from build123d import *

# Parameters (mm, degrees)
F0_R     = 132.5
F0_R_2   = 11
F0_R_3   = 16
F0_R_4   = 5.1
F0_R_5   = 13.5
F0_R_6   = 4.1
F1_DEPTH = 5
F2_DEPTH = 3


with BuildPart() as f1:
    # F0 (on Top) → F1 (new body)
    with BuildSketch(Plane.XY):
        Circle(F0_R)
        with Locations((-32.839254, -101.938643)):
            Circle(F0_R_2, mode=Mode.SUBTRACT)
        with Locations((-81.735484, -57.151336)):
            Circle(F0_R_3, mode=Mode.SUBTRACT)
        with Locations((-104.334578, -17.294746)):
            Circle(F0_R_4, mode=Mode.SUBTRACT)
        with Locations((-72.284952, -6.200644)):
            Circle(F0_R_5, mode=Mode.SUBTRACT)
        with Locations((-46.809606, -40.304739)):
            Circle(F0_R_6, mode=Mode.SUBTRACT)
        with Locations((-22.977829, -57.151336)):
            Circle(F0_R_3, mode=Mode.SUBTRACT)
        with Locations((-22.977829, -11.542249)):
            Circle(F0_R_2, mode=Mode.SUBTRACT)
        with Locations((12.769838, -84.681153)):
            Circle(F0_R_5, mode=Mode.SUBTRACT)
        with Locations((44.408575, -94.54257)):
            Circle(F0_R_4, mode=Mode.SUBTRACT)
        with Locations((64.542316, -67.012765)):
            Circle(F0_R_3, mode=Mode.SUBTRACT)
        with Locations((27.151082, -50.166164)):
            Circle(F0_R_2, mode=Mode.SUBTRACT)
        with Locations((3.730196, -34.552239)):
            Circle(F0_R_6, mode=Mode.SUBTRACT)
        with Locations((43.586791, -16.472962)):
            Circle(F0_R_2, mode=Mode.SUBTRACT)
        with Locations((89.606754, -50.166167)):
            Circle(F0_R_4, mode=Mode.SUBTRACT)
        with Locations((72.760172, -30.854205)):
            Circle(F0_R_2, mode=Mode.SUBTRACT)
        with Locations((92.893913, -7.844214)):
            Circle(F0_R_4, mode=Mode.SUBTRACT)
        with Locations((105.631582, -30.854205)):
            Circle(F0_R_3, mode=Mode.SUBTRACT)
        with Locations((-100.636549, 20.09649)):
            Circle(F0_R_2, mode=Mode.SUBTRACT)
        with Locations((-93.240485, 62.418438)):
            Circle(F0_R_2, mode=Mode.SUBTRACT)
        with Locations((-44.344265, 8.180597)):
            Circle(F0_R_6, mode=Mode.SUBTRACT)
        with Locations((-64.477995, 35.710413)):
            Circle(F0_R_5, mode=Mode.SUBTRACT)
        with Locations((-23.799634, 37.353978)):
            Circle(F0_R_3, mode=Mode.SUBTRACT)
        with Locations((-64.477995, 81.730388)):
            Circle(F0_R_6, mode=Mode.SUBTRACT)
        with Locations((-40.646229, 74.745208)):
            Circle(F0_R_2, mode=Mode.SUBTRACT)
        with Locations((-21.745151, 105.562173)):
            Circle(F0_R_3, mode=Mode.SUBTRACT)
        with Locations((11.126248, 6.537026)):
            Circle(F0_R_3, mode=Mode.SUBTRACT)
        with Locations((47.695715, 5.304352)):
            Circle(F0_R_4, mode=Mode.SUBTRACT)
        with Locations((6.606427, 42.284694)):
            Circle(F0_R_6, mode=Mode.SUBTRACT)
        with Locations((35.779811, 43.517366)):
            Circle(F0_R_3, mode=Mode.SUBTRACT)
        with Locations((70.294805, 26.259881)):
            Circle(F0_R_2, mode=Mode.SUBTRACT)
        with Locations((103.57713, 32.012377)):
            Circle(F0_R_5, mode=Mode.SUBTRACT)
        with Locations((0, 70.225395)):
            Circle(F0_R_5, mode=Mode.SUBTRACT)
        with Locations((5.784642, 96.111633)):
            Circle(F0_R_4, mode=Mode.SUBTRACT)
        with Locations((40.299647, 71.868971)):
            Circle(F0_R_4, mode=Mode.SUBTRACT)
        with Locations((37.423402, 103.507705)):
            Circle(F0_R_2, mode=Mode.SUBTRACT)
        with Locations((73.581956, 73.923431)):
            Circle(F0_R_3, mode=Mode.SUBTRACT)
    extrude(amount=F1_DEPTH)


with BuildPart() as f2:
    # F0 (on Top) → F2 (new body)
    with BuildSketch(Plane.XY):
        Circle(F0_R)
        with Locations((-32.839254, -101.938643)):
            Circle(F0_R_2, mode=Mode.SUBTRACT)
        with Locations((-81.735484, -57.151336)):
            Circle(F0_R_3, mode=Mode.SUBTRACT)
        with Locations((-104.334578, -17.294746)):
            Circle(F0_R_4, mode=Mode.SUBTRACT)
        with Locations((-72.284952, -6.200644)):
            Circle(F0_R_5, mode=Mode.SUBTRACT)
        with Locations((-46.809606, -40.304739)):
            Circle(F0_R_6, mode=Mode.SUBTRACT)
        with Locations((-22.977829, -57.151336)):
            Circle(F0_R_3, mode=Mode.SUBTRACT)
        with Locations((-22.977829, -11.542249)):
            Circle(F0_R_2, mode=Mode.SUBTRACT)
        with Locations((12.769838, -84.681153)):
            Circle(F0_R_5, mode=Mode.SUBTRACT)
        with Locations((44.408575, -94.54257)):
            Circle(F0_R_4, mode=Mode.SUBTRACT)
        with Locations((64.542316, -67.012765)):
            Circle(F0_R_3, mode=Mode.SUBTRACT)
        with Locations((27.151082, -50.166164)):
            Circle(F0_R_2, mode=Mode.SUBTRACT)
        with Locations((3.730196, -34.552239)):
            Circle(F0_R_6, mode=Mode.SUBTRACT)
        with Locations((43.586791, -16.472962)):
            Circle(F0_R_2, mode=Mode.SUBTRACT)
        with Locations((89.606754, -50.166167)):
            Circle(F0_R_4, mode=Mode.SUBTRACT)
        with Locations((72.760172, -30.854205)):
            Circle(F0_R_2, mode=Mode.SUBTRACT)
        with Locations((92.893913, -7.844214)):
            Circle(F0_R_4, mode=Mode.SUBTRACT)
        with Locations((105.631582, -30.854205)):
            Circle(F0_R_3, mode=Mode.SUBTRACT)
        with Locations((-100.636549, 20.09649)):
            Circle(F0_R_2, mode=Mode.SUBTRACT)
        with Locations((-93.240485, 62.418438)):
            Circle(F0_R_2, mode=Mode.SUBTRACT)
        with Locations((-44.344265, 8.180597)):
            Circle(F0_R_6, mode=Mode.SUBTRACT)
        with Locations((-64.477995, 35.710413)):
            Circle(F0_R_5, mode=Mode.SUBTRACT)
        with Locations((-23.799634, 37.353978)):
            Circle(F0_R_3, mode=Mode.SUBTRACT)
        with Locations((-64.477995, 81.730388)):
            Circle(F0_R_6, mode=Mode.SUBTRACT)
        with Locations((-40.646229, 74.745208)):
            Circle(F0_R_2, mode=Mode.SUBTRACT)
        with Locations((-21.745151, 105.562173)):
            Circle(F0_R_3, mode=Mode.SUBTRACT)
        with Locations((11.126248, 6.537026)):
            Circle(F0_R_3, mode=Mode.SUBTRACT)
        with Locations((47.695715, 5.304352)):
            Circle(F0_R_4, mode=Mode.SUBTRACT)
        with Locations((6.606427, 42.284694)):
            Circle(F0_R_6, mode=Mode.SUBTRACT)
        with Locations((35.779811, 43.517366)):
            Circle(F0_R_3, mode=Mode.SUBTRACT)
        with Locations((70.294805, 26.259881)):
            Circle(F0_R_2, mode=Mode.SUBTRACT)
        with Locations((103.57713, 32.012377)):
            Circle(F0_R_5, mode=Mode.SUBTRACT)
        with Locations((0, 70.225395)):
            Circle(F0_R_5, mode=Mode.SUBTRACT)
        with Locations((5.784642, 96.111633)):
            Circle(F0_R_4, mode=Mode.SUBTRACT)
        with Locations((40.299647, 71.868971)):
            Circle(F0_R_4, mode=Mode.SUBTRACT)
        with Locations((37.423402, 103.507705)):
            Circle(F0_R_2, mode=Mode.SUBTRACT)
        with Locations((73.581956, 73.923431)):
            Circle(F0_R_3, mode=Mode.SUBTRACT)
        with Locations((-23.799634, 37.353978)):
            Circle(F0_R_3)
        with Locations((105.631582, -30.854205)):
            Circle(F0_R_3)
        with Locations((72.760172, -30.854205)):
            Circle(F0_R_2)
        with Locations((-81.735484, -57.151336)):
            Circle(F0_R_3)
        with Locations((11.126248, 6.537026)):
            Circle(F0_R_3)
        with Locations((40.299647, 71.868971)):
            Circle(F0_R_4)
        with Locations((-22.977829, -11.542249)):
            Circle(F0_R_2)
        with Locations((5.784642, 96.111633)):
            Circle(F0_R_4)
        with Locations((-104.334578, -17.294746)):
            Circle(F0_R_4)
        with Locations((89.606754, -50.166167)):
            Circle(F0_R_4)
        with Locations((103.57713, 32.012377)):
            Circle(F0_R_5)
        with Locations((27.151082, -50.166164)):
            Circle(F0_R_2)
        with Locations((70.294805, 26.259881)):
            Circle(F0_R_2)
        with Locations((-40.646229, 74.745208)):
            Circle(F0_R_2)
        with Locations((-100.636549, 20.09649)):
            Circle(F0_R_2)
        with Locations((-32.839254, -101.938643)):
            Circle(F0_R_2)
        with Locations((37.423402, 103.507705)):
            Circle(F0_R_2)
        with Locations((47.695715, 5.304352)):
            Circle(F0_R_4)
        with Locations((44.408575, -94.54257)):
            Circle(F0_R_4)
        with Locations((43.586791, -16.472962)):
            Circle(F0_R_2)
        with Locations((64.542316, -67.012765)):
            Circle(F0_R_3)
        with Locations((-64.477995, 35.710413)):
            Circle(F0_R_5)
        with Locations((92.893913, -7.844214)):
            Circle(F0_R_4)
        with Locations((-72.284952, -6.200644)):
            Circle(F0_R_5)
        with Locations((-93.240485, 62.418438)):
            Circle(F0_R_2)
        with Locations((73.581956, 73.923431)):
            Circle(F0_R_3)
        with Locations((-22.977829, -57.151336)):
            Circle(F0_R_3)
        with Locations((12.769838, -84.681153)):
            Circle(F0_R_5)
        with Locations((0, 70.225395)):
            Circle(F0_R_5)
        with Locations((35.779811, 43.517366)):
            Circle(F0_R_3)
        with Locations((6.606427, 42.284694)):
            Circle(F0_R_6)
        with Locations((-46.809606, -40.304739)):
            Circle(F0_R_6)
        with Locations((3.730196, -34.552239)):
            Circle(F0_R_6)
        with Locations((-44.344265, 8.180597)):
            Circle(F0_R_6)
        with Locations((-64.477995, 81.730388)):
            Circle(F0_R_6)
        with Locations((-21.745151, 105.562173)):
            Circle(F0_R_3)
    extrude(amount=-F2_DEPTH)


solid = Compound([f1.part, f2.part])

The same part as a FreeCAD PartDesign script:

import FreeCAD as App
import Part
import Sketcher
from FreeCAD import Vector

doc = App.newDocument("Part")
params = doc.addObject("Spreadsheet::Sheet", "Params")
for row, (alias, value) in enumerate([
    ("sketch1_diameter", "265 mm"),
    ("sketch1_diameter2", "32 mm"),
    ("sketch1_diameter3", "22 mm"),
    ("sketch1_diameter4", "27 mm"),
    ("sketch1_diameter5", "10.2 mm"),
    ("pad1_length", "5 mm"),
    ("sketch2_diameter", "265 mm"),
    ("pad2_length", "3 mm"),
], start=1):
    params.set(f"A{row}", alias)
    params.set(f"B{row}", "=" + value)
    params.setAlias(f"B{row}", alias)

body = doc.addObject("PartDesign::Body", "Body")

sketch1 = doc.addObject("Sketcher::SketchObject", "Sketch")
body.addObject(sketch1)
sketch1.AttachmentSupport = (doc.XY_Plane, [""])
sketch1.MapMode = "FlatFace"
sketch1.addGeometry([
    Part.Circle(Vector(0, 0, 0), Vector(0, 0, 1), 132.5),
    Part.Circle(Vector(-81.7, -57.2, 0), Vector(0, 0, 1), 16),
    Part.Circle(Vector(-32.8, -101.9, 0), Vector(0, 0, 1), 11),
    Part.Circle(Vector(-23, -57.2, 0), Vector(0, 0, 1), 16),
    Part.Circle(Vector(-104.3, -17.3, 0), Vector(0, 0, 1), 5.1),
    Part.Circle(Vector(-72.3, -6.2, 0), Vector(0, 0, 1), 13.5),
    Part.Circle(Vector(-46.8, -40.3, 0), Vector(0, 0, 1), 4.1),
    Part.Circle(Vector(3.7, -34.6, 0), Vector(0, 0, 1), 4.1),
    Part.Circle(Vector(-23, -11.5, 0), Vector(0, 0, 1), 11),
    Part.Circle(Vector(12.8, -84.7, 0), Vector(0, 0, 1), 13.5),
    Part.Circle(Vector(44.4, -94.5, 0), Vector(0, 0, 1), 5.1),
    Part.Circle(Vector(64.5, -67, 0), Vector(0, 0, 1), 16),
    Part.Circle(Vector(27.2, -50.2, 0), Vector(0, 0, 1), 11),
    Part.Circle(Vector(43.6, -16.5, 0), Vector(0, 0, 1), 11),
    Part.Circle(Vector(89.6, -50.2, 0), Vector(0, 0, 1), 5.1),
    Part.Circle(Vector(72.8, -30.9, 0), Vector(0, 0, 1), 11),
    Part.Circle(Vector(105.6, -30.9, 0), Vector(0, 0, 1), 16),
    Part.Circle(Vector(92.9, -7.8, 0), Vector(0, 0, 1), 5.1),
    Part.Circle(Vector(-100.6, 20.1, 0), Vector(0, 0, 1), 11),
    Part.Circle(Vector(-93.2, 62.4, 0), Vector(0, 0, 1), 11),
    Part.Circle(Vector(-64.5, 35.7, 0), Vector(0, 0, 1), 13.5),
    Part.Circle(Vector(-44.3, 8.2, 0), Vector(0, 0, 1), 4.1),
    Part.Circle(Vector(-23.8, 37.4, 0), Vector(0, 0, 1), 16),
    Part.Circle(Vector(-64.5, 81.7, 0), Vector(0, 0, 1), 4.1),
    Part.Circle(Vector(-40.6, 74.7, 0), Vector(0, 0, 1), 11),
    Part.Circle(Vector(0, 70.2, 0), Vector(0, 0, 1), 13.5),
    Part.Circle(Vector(-21.7, 105.6, 0), Vector(0, 0, 1), 16),
    Part.Circle(Vector(11.1, 6.5, 0), Vector(0, 0, 1), 16),
    Part.Circle(Vector(47.7, 5.3, 0), Vector(0, 0, 1), 5.1),
    Part.Circle(Vector(6.6, 42.3, 0), Vector(0, 0, 1), 4.1),
    Part.Circle(Vector(35.8, 43.5, 0), Vector(0, 0, 1), 16),
    Part.Circle(Vector(70.3, 26.3, 0), Vector(0, 0, 1), 11),
    Part.Circle(Vector(103.6, 32, 0), Vector(0, 0, 1), 13.5),
    Part.Circle(Vector(40.3, 71.9, 0), Vector(0, 0, 1), 5.1),
    Part.Circle(Vector(5.8, 96.1, 0), Vector(0, 0, 1), 5.1),
    Part.Circle(Vector(37.4, 103.5, 0), Vector(0, 0, 1), 11),
    Part.Circle(Vector(73.6, 73.9, 0), Vector(0, 0, 1), 16),
], False)
sketch1.addConstraint([
    Sketcher.Constraint("Coincident", 0, 3, -1, 1),
    Sketcher.Constraint("Equal", 1, 3),
    Sketcher.Constraint("Equal", 6, 7),
    Sketcher.Constraint("Equal", 2, 8),
    Sketcher.Constraint("Equal", 5, 9),
    Sketcher.Constraint("Equal", 4, 10),
    Sketcher.Constraint("Equal", 3, 11),
    Sketcher.Constraint("Equal", 8, 12),
    Sketcher.Constraint("Equal", 12, 13),
    Sketcher.Constraint("Equal", 10, 14),
    Sketcher.Constraint("Equal", 13, 15),
    Sketcher.Constraint("Equal", 11, 16),
    Sketcher.Constraint("Equal", 14, 17),
    Sketcher.Constraint("Equal", 15, 18),
    Sketcher.Constraint("Equal", 18, 19),
    Sketcher.Constraint("Equal", 9, 20),
    Sketcher.Constraint("Equal", 7, 21),
    Sketcher.Constraint("Equal", 16, 22),
    Sketcher.Constraint("Equal", 21, 23),
    Sketcher.Constraint("Equal", 19, 24),
    Sketcher.Constraint("Equal", 20, 25),
    Sketcher.Constraint("Equal", 22, 26),
    Sketcher.Constraint("Equal", 26, 27),
    Sketcher.Constraint("Equal", 17, 28),
    Sketcher.Constraint("Equal", 23, 29),
    Sketcher.Constraint("Equal", 27, 30),
    Sketcher.Constraint("Equal", 24, 31),
    Sketcher.Constraint("Equal", 25, 32),
    Sketcher.Constraint("Equal", 28, 33),
    Sketcher.Constraint("Equal", 33, 34),
    Sketcher.Constraint("Equal", 31, 35),
    Sketcher.Constraint("Equal", 30, 36),
    Sketcher.Constraint("PointOnObject", 25, 3, -2),
    Sketcher.Constraint("Horizontal", 1, 3, 3, 3),
    Sketcher.Constraint("Horizontal", 15, 3, 16, 3),
    Sketcher.Constraint("Vertical", 3, 3, 8, 3),
    Sketcher.Constraint("Vertical", 20, 3, 23, 3),
    Sketcher.Constraint("Diameter", 0, 265.0),
    Sketcher.Constraint("Diameter", 1, 32.0),
    Sketcher.Constraint("Diameter", 2, 22.0),
    Sketcher.Constraint("Diameter", 5, 27.0),
    Sketcher.Constraint("Diameter", 4, 10.2),
    Sketcher.Constraint("Diameter", 6, 8.2),
    Sketcher.Constraint("DistanceY", 2, 3, 5, 3, 95.737999),
    Sketcher.Constraint("DistanceX", 5, 3, 2, 3, 39.445698),
    Sketcher.Constraint("DistanceY", 6, 3, 7, 3, 5.7525),
    Sketcher.Constraint("DistanceY", 11, 3, 12, 3, 16.846601),
    Sketcher.Constraint("DistanceY", 11, 3, 14, 3, 16.846598),
    Sketcher.Constraint("DistanceX", 12, 3, 16, 3, 78.4805),
    Sketcher.Constraint("DistanceY", 18, 3, 23, 3, 61.633898),
    Sketcher.Constraint("DistanceY", 29, 3, 25, 3, 27.940701),
    Sketcher.Constraint("DistanceX", 3, 3, -1, 1, 22.977829),
    Sketcher.Constraint("DistanceY", 6, 3, -1, 1, 40.304739),
    Sketcher.Constraint("DistanceY", 8, 3, -1, 1, 11.542249),
    Sketcher.Constraint("DistanceY", 10, 3, -1, 1, 94.54257),
    Sketcher.Constraint("DistanceX", -1, 1, 12, 3, 27.151082),
    Sketcher.Constraint("DistanceX", -1, 1, 13, 3, 43.586791),
    Sketcher.Constraint("DistanceY", 13, 3, -1, 1, 16.472962),
    Sketcher.Constraint("DistanceX", -1, 1, 15, 3, 72.760172),
    Sketcher.Constraint("DistanceX", 18, 3, -1, 1, 100.636549),
    Sketcher.Constraint("DistanceY", -1, 1, 18, 3, 20.09649),
    Sketcher.Constraint("DistanceY", -1, 1, 19, 3, 62.418438),
    Sketcher.Constraint("DistanceX", 24, 3, -1, 1, 40.646229),
    Sketcher.Constraint("DistanceY", -1, 1, 24, 3, 74.745208),
    Sketcher.Constraint("DistanceX", 26, 3, -1, 1, 21.745151),
    Sketcher.Constraint("DistanceY", -1, 1, 28, 3, 5.304352),
    Sketcher.Constraint("DistanceX", -1, 1, 30, 3, 35.779811),
    Sketcher.Constraint("DistanceY", -1, 1, 31, 3, 26.259881),
    Sketcher.Constraint("DistanceX", -1, 1, 32, 3, 103.57713),
    Sketcher.Constraint("DistanceY", -1, 1, 33, 3, 71.868971),
    Sketcher.Constraint("DistanceY", -1, 1, 36, 3, 73.923431),
    Sketcher.Constraint("DistanceX", 1, 3, 2, 3, 48.89623),
    Sketcher.Constraint("DistanceY", 1, 3, 4, 3, 39.85659),
    Sketcher.Constraint("DistanceX", 4, 3, 3, 3, 81.356749),
    Sketcher.Constraint("DistanceX", 4, 3, 6, 3, 57.524972),
    Sketcher.Constraint("DistanceX", 2, 3, 7, 3, 36.56945),
    Sketcher.Constraint("DistanceX", 2, 3, 9, 3, 45.609092),
    Sketcher.Constraint("DistanceY", 2, 3, 9, 3, 17.25749),
    Sketcher.Constraint("DistanceX", 7, 3, 10, 3, 40.678379),
    Sketcher.Constraint("DistanceX", 10, 3, 11, 3, 20.133741),
    Sketcher.Constraint("DistanceY", 11, 3, 3, 3, 9.861429),
    Sketcher.Constraint("DistanceY", 9, 3, 12, 3, 34.514989),
    Sketcher.Constraint("DistanceX", 12, 3, 14, 3, 62.455672),
    Sketcher.Constraint("DistanceX", 10, 3, 14, 3, 45.198179),
    Sketcher.Constraint("DistanceY", 11, 3, 15, 3, 36.15856),
    Sketcher.Constraint("DistanceX", 17, 3, 16, 3, 12.737669),
    Sketcher.Constraint("DistanceY", 16, 3, 17, 3, 23.009991),
    Sketcher.Constraint("DistanceX", 19, 3, 20, 3, 28.76249),
    Sketcher.Constraint("DistanceY", 4, 3, 20, 3, 53.005159),
    Sketcher.Constraint("DistanceY", 5, 3, 21, 3, 14.381241),
    Sketcher.Constraint("DistanceX", 20, 3, 21, 3, 20.13373),
    Sketcher.Constraint("DistanceX", 6, 3, 21, 3, 2.465341),
    Sketcher.Constraint("DistanceX", 21, 3, 22, 3, 20.544631),
    Sketcher.Constraint("DistanceY", 21, 3, 22, 3, 29.173381),
    Sketcher.Constraint("DistanceY", 22, 3, 23, 3, 44.37641),
    Sketcher.Constraint("DistanceY", 20, 3, 26, 3, 69.85176),
    Sketcher.Constraint("DistanceY", 13, 3, 27, 3, 23.009988),
    Sketcher.Constraint("DistanceX", 22, 3, 29, 3, 30.406061),
    Sketcher.Constraint("DistanceX", 29, 3, 27, 3, 4.519821),
    Sketcher.Constraint("DistanceY", 27, 3, 29, 3, 35.747668),
    Sketcher.Constraint("DistanceY", 27, 3, 30, 3, 36.98034),
    Sketcher.Constraint("DistanceX", 28, 3, 31, 3, 22.59909),
    Sketcher.Constraint("DistanceX", 31, 3, 17, 3, 22.599108),
    Sketcher.Constraint("DistanceY", 17, 3, 32, 3, 39.856591),
    Sketcher.Constraint("DistanceX", 29, 3, 33, 3, 33.69322),
    Sketcher.Constraint("DistanceY", 34, 3, 26, 3, 9.45054),
    Sketcher.Constraint("DistanceX", 24, 3, 34, 3, 46.430871),
    Sketcher.Constraint("DistanceX", 34, 3, 35, 3, 31.63876),
    Sketcher.Constraint("DistanceY", 25, 3, 35, 3, 33.28231),
    Sketcher.Constraint("DistanceX", 33, 3, 36, 3, 33.282309),
])
sketch1.setExpression("Constraints[37]", "Params.sketch1_diameter")
sketch1.setExpression("Constraints[38]", "Params.sketch1_diameter2")
sketch1.setExpression("Constraints[39]", "Params.sketch1_diameter3")
sketch1.setExpression("Constraints[40]", "Params.sketch1_diameter4")
sketch1.setExpression("Constraints[41]", "Params.sketch1_diameter5")
pad1 = doc.addObject("PartDesign::Pad", "Pad")
body.addObject(pad1)
pad1.Profile = sketch1
pad1.setExpression("Length", "Params.pad1_length")
body2 = doc.addObject("PartDesign::Body", "Body001")

sketch2 = doc.addObject("Sketcher::SketchObject", "Sketch001")
body2.addObject(sketch2)
sketch2.AttachmentSupport = (doc.getObject("XY_Plane001"), [""])
sketch2.MapMode = "FlatFace"
sketch2.addGeometry(Part.Circle(Vector(0, 0, 0), Vector(0, 0, 1), 132), False)
sketch2.addConstraint([
    Sketcher.Constraint("Coincident", 0, 3, -1, 1),
    Sketcher.Constraint("Diameter", 0, 265.0),
])
sketch2.setExpression("Constraints[1]", "Params.sketch2_diameter")
pad2 = doc.addObject("PartDesign::Pad", "Pad001")
body2.addObject(pad2)
pad2.Profile = sketch2
pad2.setExpression("Length", "Params.pad2_length")
pad2.Reversed = True

doc.recompute()
